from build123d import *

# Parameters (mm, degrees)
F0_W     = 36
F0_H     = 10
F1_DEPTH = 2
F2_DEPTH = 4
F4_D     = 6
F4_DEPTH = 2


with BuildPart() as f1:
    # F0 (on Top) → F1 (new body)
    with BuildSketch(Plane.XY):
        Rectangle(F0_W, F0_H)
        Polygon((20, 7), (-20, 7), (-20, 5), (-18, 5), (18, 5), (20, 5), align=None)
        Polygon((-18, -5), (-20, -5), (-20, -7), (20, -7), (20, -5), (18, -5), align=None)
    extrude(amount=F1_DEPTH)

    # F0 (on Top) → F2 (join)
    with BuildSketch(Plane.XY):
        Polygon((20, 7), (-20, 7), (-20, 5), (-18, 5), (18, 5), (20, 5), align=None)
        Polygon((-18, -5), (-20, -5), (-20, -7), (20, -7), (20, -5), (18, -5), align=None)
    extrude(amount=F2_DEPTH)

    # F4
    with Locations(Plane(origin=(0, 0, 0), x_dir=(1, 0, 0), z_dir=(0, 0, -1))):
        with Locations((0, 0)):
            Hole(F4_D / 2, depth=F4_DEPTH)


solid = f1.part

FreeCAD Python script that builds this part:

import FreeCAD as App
import Part
import Sketcher

V = App.Vector
Q = App.Units.Quantity

doc = App.newDocument("Part")
body = doc.addObject("PartDesign::Body", "Body")

# Sketch on XY plane
sketch1 = body.newObject("Sketcher::SketchObject", "Sketch")
sketch1.AttachmentSupport = (doc.getObject("XY_Plane"), [""])
sketch1.MapMode = "FlatFace"
sketch1.addGeometry([
    Part.LineSegment(V(-18, 5, 0), V(-18, -5, 0)),  # 0
    Part.LineSegment(V(-18, -5, 0), V(-20, -5, 0)),  # 1
    Part.LineSegment(V(-20, -5, 0), V(-20, -7, 0)),  # 2
    Part.LineSegment(V(-20, -7, 0), V(20, -7, 0)),  # 3
    Part.LineSegment(V(20, -7, 0), V(20, -5, 0)),  # 4
    Part.LineSegment(V(20, -5, 0), V(18, -5, 0)),  # 5
    Part.LineSegment(V(18, -5, 0), V(18, 5, 0)),  # 6
    Part.LineSegment(V(18, 5, 0), V(20, 5, 0)),  # 7
    Part.LineSegment(V(20, 5, 0), V(20, 7, 0)),  # 8
    Part.LineSegment(V(20, 7, 0), V(-20, 7, 0)),  # 9
    Part.LineSegment(V(-20, 7, 0), V(-20, 5, 0)),  # 10
    Part.LineSegment(V(-20, 5, 0), V(-18, 5, 0)),  # 11
], False)
sketch1.addConstraint([
    Sketcher.Constraint("Coincident", 0, 2, 1, 1),
    Sketcher.Constraint("Coincident", 1, 2, 2, 1),
    Sketcher.Constraint("Coincident", 2, 2, 3, 1),
    Sketcher.Constraint("Coincident", 3, 2, 4, 1),
    Sketcher.Constraint("Coincident", 4, 2, 5, 1),
    Sketcher.Constraint("Coincident", 5, 2, 6, 1),
    Sketcher.Constraint("Coincident", 6, 2, 7, 1),
    Sketcher.Constraint("Coincident", 7, 2, 8, 1),
    Sketcher.Constraint("Coincident", 8, 2, 9, 1),
    Sketcher.Constraint("Coincident", 9, 2, 10, 1),
    Sketcher.Constraint("Coincident", 10, 2, 11, 1),
    Sketcher.Constraint("Coincident", 11, 2, 0, 1),
    Sketcher.Constraint("Vertical", 0),
    Sketcher.Constraint("Horizontal", 1),
    Sketcher.Constraint("Vertical", 2),
    Sketcher.Constraint("Horizontal", 3),
    Sketcher.Constraint("Vertical", 4),
    Sketcher.Constraint("Horizontal", 5),
    Sketcher.Constraint("Vertical", 6),
    Sketcher.Constraint("Horizontal", 7),
    Sketcher.Constraint("Vertical", 8),
    Sketcher.Constraint("Horizontal", 9),
    Sketcher.Constraint("Vertical", 10),
    Sketcher.Constraint("Horizontal", 11),
    Sketcher.Constraint("Symmetric", 0, 2, 6, 2, -1, 1),
    Sketcher.Constraint("Symmetric", 2, 2, 8, 2, -1, 1),
    Sketcher.Constraint("Symmetric", 4, 2, 10, 2, -1, 1),
    Sketcher.Constraint("Symmetric", 1, 2, 4, 2, -2),
    Sketcher.Constraint("Equal", 11, 2),
    Sketcher.Constraint("DistanceX", 1, 2, 1, 1, Q("2 mm")),
    Sketcher.Constraint("DistanceX", 3, 1, 3, 2, Q("40 mm")),
    Sketcher.Constraint("DistanceY", 0, 2, 0, 1, Q("10 mm")),
])
pad1 = body.newObject("PartDesign::Pad", "Pad")
pad1.Profile = sketch1
pad1.Length = 2

# Sketch on XY plane
sketch2 = body.newObject("Sketcher::SketchObject", "Sketch001")
sketch2.AttachmentSupport = (doc.getObject("XY_Plane"), [""])
sketch2.MapMode = "FlatFace"
sketch2.addGeometry([
    Part.LineSegment(V(20, 7, 0), V(-20, 7, 0)),  # 0
    Part.LineSegment(V(-20, 7, 0), V(-20, 5, 0)),  # 1
    Part.LineSegment(V(-20, 5, 0), V(20, 5, 0)),  # 2
    Part.LineSegment(V(20, 5, 0), V(20, 7, 0)),  # 3
    Part.LineSegment(V(-20, -5, 0), V(-20, -7, 0)),  # 4
    Part.LineSegment(V(-20, -7, 0), V(20, -7, 0)),  # 5
    Part.LineSegment(V(20, -7, 0), V(20, -5, 0)),  # 6
    Part.LineSegment(V(20, -5, 0), V(-20, -5, 0)),  # 7
], False)
sketch2.addConstraint([
    Sketcher.Constraint("Coincident", 0, 2, 1, 1),
    Sketcher.Constraint("Coincident", 1, 2, 2, 1),
    Sketcher.Constraint("Coincident", 2, 2, 3, 1),
    Sketcher.Constraint("Coincident", 3, 2, 0, 1),
    Sketcher.Constraint("Coincident", 4, 2, 5, 1),
    Sketcher.Constraint("Coincident", 5, 2, 6, 1),
    Sketcher.Constraint("Coincident", 6, 2, 7, 1),
    Sketcher.Constraint("Coincident", 7, 2, 4, 1),
    Sketcher.Constraint("Horizontal", 0),
    Sketcher.Constraint("Vertical", 1),
    Sketcher.Constraint("Horizontal", 2),
    Sketcher.Constraint("Vertical", 3),
    Sketcher.Constraint("Vertical", 4),
    Sketcher.Constraint("Horizontal", 5),
    Sketcher.Constraint("Vertical", 6),
    Sketcher.Constraint("Horizontal", 7),
    Sketcher.Constraint("Symmetric", 3, 2, 4, 2, -1, 1),
    Sketcher.Constraint("Symmetric", 1, 2, 6, 2, -1, 1),
    Sketcher.Constraint("Vertical", 1, 2, 4, 2),
    Sketcher.Constraint("DistanceX", 0, 2, 0, 1, Q("40 mm")),
    Sketcher.Constraint("DistanceY", 1, 2, 1, 1, Q("2 mm")),
    Sketcher.Constraint("DistanceY", -1, 1, 0, 2, Q("7 mm")),
])
pad2 = body.newObject("PartDesign::Pad", "Pad001")
pad2.Profile = sketch2
pad2.Length = 4

# Sketch on XY plane
sketch3 = body.newObject("Sketcher::SketchObject", "Sketch002")
sketch3.AttachmentSupport = (doc.getObject("XY_Plane"), [""])
sketch3.MapMode = "FlatFace"
sketch3.addGeometry(Part.Circle(V(0, 0, 0), V(0, 0, 1), 3), False)
sketch3.addConstraint([
    Sketcher.Constraint("Coincident", 0, 3, -1, 1),
    Sketcher.Constraint("Diameter", 0, Q("6 mm")),
])
doc.recompute()
hole = body.newObject("PartDesign::Hole", "Hole")
hole.Profile = sketch3
hole.ThreadType = "None"
hole.Diameter = 6
hole.DepthType = "Dimension"
hole.Depth = 2
hole.DrillPoint = "Flat"
hole.Reversed = True

doc.recompute()
